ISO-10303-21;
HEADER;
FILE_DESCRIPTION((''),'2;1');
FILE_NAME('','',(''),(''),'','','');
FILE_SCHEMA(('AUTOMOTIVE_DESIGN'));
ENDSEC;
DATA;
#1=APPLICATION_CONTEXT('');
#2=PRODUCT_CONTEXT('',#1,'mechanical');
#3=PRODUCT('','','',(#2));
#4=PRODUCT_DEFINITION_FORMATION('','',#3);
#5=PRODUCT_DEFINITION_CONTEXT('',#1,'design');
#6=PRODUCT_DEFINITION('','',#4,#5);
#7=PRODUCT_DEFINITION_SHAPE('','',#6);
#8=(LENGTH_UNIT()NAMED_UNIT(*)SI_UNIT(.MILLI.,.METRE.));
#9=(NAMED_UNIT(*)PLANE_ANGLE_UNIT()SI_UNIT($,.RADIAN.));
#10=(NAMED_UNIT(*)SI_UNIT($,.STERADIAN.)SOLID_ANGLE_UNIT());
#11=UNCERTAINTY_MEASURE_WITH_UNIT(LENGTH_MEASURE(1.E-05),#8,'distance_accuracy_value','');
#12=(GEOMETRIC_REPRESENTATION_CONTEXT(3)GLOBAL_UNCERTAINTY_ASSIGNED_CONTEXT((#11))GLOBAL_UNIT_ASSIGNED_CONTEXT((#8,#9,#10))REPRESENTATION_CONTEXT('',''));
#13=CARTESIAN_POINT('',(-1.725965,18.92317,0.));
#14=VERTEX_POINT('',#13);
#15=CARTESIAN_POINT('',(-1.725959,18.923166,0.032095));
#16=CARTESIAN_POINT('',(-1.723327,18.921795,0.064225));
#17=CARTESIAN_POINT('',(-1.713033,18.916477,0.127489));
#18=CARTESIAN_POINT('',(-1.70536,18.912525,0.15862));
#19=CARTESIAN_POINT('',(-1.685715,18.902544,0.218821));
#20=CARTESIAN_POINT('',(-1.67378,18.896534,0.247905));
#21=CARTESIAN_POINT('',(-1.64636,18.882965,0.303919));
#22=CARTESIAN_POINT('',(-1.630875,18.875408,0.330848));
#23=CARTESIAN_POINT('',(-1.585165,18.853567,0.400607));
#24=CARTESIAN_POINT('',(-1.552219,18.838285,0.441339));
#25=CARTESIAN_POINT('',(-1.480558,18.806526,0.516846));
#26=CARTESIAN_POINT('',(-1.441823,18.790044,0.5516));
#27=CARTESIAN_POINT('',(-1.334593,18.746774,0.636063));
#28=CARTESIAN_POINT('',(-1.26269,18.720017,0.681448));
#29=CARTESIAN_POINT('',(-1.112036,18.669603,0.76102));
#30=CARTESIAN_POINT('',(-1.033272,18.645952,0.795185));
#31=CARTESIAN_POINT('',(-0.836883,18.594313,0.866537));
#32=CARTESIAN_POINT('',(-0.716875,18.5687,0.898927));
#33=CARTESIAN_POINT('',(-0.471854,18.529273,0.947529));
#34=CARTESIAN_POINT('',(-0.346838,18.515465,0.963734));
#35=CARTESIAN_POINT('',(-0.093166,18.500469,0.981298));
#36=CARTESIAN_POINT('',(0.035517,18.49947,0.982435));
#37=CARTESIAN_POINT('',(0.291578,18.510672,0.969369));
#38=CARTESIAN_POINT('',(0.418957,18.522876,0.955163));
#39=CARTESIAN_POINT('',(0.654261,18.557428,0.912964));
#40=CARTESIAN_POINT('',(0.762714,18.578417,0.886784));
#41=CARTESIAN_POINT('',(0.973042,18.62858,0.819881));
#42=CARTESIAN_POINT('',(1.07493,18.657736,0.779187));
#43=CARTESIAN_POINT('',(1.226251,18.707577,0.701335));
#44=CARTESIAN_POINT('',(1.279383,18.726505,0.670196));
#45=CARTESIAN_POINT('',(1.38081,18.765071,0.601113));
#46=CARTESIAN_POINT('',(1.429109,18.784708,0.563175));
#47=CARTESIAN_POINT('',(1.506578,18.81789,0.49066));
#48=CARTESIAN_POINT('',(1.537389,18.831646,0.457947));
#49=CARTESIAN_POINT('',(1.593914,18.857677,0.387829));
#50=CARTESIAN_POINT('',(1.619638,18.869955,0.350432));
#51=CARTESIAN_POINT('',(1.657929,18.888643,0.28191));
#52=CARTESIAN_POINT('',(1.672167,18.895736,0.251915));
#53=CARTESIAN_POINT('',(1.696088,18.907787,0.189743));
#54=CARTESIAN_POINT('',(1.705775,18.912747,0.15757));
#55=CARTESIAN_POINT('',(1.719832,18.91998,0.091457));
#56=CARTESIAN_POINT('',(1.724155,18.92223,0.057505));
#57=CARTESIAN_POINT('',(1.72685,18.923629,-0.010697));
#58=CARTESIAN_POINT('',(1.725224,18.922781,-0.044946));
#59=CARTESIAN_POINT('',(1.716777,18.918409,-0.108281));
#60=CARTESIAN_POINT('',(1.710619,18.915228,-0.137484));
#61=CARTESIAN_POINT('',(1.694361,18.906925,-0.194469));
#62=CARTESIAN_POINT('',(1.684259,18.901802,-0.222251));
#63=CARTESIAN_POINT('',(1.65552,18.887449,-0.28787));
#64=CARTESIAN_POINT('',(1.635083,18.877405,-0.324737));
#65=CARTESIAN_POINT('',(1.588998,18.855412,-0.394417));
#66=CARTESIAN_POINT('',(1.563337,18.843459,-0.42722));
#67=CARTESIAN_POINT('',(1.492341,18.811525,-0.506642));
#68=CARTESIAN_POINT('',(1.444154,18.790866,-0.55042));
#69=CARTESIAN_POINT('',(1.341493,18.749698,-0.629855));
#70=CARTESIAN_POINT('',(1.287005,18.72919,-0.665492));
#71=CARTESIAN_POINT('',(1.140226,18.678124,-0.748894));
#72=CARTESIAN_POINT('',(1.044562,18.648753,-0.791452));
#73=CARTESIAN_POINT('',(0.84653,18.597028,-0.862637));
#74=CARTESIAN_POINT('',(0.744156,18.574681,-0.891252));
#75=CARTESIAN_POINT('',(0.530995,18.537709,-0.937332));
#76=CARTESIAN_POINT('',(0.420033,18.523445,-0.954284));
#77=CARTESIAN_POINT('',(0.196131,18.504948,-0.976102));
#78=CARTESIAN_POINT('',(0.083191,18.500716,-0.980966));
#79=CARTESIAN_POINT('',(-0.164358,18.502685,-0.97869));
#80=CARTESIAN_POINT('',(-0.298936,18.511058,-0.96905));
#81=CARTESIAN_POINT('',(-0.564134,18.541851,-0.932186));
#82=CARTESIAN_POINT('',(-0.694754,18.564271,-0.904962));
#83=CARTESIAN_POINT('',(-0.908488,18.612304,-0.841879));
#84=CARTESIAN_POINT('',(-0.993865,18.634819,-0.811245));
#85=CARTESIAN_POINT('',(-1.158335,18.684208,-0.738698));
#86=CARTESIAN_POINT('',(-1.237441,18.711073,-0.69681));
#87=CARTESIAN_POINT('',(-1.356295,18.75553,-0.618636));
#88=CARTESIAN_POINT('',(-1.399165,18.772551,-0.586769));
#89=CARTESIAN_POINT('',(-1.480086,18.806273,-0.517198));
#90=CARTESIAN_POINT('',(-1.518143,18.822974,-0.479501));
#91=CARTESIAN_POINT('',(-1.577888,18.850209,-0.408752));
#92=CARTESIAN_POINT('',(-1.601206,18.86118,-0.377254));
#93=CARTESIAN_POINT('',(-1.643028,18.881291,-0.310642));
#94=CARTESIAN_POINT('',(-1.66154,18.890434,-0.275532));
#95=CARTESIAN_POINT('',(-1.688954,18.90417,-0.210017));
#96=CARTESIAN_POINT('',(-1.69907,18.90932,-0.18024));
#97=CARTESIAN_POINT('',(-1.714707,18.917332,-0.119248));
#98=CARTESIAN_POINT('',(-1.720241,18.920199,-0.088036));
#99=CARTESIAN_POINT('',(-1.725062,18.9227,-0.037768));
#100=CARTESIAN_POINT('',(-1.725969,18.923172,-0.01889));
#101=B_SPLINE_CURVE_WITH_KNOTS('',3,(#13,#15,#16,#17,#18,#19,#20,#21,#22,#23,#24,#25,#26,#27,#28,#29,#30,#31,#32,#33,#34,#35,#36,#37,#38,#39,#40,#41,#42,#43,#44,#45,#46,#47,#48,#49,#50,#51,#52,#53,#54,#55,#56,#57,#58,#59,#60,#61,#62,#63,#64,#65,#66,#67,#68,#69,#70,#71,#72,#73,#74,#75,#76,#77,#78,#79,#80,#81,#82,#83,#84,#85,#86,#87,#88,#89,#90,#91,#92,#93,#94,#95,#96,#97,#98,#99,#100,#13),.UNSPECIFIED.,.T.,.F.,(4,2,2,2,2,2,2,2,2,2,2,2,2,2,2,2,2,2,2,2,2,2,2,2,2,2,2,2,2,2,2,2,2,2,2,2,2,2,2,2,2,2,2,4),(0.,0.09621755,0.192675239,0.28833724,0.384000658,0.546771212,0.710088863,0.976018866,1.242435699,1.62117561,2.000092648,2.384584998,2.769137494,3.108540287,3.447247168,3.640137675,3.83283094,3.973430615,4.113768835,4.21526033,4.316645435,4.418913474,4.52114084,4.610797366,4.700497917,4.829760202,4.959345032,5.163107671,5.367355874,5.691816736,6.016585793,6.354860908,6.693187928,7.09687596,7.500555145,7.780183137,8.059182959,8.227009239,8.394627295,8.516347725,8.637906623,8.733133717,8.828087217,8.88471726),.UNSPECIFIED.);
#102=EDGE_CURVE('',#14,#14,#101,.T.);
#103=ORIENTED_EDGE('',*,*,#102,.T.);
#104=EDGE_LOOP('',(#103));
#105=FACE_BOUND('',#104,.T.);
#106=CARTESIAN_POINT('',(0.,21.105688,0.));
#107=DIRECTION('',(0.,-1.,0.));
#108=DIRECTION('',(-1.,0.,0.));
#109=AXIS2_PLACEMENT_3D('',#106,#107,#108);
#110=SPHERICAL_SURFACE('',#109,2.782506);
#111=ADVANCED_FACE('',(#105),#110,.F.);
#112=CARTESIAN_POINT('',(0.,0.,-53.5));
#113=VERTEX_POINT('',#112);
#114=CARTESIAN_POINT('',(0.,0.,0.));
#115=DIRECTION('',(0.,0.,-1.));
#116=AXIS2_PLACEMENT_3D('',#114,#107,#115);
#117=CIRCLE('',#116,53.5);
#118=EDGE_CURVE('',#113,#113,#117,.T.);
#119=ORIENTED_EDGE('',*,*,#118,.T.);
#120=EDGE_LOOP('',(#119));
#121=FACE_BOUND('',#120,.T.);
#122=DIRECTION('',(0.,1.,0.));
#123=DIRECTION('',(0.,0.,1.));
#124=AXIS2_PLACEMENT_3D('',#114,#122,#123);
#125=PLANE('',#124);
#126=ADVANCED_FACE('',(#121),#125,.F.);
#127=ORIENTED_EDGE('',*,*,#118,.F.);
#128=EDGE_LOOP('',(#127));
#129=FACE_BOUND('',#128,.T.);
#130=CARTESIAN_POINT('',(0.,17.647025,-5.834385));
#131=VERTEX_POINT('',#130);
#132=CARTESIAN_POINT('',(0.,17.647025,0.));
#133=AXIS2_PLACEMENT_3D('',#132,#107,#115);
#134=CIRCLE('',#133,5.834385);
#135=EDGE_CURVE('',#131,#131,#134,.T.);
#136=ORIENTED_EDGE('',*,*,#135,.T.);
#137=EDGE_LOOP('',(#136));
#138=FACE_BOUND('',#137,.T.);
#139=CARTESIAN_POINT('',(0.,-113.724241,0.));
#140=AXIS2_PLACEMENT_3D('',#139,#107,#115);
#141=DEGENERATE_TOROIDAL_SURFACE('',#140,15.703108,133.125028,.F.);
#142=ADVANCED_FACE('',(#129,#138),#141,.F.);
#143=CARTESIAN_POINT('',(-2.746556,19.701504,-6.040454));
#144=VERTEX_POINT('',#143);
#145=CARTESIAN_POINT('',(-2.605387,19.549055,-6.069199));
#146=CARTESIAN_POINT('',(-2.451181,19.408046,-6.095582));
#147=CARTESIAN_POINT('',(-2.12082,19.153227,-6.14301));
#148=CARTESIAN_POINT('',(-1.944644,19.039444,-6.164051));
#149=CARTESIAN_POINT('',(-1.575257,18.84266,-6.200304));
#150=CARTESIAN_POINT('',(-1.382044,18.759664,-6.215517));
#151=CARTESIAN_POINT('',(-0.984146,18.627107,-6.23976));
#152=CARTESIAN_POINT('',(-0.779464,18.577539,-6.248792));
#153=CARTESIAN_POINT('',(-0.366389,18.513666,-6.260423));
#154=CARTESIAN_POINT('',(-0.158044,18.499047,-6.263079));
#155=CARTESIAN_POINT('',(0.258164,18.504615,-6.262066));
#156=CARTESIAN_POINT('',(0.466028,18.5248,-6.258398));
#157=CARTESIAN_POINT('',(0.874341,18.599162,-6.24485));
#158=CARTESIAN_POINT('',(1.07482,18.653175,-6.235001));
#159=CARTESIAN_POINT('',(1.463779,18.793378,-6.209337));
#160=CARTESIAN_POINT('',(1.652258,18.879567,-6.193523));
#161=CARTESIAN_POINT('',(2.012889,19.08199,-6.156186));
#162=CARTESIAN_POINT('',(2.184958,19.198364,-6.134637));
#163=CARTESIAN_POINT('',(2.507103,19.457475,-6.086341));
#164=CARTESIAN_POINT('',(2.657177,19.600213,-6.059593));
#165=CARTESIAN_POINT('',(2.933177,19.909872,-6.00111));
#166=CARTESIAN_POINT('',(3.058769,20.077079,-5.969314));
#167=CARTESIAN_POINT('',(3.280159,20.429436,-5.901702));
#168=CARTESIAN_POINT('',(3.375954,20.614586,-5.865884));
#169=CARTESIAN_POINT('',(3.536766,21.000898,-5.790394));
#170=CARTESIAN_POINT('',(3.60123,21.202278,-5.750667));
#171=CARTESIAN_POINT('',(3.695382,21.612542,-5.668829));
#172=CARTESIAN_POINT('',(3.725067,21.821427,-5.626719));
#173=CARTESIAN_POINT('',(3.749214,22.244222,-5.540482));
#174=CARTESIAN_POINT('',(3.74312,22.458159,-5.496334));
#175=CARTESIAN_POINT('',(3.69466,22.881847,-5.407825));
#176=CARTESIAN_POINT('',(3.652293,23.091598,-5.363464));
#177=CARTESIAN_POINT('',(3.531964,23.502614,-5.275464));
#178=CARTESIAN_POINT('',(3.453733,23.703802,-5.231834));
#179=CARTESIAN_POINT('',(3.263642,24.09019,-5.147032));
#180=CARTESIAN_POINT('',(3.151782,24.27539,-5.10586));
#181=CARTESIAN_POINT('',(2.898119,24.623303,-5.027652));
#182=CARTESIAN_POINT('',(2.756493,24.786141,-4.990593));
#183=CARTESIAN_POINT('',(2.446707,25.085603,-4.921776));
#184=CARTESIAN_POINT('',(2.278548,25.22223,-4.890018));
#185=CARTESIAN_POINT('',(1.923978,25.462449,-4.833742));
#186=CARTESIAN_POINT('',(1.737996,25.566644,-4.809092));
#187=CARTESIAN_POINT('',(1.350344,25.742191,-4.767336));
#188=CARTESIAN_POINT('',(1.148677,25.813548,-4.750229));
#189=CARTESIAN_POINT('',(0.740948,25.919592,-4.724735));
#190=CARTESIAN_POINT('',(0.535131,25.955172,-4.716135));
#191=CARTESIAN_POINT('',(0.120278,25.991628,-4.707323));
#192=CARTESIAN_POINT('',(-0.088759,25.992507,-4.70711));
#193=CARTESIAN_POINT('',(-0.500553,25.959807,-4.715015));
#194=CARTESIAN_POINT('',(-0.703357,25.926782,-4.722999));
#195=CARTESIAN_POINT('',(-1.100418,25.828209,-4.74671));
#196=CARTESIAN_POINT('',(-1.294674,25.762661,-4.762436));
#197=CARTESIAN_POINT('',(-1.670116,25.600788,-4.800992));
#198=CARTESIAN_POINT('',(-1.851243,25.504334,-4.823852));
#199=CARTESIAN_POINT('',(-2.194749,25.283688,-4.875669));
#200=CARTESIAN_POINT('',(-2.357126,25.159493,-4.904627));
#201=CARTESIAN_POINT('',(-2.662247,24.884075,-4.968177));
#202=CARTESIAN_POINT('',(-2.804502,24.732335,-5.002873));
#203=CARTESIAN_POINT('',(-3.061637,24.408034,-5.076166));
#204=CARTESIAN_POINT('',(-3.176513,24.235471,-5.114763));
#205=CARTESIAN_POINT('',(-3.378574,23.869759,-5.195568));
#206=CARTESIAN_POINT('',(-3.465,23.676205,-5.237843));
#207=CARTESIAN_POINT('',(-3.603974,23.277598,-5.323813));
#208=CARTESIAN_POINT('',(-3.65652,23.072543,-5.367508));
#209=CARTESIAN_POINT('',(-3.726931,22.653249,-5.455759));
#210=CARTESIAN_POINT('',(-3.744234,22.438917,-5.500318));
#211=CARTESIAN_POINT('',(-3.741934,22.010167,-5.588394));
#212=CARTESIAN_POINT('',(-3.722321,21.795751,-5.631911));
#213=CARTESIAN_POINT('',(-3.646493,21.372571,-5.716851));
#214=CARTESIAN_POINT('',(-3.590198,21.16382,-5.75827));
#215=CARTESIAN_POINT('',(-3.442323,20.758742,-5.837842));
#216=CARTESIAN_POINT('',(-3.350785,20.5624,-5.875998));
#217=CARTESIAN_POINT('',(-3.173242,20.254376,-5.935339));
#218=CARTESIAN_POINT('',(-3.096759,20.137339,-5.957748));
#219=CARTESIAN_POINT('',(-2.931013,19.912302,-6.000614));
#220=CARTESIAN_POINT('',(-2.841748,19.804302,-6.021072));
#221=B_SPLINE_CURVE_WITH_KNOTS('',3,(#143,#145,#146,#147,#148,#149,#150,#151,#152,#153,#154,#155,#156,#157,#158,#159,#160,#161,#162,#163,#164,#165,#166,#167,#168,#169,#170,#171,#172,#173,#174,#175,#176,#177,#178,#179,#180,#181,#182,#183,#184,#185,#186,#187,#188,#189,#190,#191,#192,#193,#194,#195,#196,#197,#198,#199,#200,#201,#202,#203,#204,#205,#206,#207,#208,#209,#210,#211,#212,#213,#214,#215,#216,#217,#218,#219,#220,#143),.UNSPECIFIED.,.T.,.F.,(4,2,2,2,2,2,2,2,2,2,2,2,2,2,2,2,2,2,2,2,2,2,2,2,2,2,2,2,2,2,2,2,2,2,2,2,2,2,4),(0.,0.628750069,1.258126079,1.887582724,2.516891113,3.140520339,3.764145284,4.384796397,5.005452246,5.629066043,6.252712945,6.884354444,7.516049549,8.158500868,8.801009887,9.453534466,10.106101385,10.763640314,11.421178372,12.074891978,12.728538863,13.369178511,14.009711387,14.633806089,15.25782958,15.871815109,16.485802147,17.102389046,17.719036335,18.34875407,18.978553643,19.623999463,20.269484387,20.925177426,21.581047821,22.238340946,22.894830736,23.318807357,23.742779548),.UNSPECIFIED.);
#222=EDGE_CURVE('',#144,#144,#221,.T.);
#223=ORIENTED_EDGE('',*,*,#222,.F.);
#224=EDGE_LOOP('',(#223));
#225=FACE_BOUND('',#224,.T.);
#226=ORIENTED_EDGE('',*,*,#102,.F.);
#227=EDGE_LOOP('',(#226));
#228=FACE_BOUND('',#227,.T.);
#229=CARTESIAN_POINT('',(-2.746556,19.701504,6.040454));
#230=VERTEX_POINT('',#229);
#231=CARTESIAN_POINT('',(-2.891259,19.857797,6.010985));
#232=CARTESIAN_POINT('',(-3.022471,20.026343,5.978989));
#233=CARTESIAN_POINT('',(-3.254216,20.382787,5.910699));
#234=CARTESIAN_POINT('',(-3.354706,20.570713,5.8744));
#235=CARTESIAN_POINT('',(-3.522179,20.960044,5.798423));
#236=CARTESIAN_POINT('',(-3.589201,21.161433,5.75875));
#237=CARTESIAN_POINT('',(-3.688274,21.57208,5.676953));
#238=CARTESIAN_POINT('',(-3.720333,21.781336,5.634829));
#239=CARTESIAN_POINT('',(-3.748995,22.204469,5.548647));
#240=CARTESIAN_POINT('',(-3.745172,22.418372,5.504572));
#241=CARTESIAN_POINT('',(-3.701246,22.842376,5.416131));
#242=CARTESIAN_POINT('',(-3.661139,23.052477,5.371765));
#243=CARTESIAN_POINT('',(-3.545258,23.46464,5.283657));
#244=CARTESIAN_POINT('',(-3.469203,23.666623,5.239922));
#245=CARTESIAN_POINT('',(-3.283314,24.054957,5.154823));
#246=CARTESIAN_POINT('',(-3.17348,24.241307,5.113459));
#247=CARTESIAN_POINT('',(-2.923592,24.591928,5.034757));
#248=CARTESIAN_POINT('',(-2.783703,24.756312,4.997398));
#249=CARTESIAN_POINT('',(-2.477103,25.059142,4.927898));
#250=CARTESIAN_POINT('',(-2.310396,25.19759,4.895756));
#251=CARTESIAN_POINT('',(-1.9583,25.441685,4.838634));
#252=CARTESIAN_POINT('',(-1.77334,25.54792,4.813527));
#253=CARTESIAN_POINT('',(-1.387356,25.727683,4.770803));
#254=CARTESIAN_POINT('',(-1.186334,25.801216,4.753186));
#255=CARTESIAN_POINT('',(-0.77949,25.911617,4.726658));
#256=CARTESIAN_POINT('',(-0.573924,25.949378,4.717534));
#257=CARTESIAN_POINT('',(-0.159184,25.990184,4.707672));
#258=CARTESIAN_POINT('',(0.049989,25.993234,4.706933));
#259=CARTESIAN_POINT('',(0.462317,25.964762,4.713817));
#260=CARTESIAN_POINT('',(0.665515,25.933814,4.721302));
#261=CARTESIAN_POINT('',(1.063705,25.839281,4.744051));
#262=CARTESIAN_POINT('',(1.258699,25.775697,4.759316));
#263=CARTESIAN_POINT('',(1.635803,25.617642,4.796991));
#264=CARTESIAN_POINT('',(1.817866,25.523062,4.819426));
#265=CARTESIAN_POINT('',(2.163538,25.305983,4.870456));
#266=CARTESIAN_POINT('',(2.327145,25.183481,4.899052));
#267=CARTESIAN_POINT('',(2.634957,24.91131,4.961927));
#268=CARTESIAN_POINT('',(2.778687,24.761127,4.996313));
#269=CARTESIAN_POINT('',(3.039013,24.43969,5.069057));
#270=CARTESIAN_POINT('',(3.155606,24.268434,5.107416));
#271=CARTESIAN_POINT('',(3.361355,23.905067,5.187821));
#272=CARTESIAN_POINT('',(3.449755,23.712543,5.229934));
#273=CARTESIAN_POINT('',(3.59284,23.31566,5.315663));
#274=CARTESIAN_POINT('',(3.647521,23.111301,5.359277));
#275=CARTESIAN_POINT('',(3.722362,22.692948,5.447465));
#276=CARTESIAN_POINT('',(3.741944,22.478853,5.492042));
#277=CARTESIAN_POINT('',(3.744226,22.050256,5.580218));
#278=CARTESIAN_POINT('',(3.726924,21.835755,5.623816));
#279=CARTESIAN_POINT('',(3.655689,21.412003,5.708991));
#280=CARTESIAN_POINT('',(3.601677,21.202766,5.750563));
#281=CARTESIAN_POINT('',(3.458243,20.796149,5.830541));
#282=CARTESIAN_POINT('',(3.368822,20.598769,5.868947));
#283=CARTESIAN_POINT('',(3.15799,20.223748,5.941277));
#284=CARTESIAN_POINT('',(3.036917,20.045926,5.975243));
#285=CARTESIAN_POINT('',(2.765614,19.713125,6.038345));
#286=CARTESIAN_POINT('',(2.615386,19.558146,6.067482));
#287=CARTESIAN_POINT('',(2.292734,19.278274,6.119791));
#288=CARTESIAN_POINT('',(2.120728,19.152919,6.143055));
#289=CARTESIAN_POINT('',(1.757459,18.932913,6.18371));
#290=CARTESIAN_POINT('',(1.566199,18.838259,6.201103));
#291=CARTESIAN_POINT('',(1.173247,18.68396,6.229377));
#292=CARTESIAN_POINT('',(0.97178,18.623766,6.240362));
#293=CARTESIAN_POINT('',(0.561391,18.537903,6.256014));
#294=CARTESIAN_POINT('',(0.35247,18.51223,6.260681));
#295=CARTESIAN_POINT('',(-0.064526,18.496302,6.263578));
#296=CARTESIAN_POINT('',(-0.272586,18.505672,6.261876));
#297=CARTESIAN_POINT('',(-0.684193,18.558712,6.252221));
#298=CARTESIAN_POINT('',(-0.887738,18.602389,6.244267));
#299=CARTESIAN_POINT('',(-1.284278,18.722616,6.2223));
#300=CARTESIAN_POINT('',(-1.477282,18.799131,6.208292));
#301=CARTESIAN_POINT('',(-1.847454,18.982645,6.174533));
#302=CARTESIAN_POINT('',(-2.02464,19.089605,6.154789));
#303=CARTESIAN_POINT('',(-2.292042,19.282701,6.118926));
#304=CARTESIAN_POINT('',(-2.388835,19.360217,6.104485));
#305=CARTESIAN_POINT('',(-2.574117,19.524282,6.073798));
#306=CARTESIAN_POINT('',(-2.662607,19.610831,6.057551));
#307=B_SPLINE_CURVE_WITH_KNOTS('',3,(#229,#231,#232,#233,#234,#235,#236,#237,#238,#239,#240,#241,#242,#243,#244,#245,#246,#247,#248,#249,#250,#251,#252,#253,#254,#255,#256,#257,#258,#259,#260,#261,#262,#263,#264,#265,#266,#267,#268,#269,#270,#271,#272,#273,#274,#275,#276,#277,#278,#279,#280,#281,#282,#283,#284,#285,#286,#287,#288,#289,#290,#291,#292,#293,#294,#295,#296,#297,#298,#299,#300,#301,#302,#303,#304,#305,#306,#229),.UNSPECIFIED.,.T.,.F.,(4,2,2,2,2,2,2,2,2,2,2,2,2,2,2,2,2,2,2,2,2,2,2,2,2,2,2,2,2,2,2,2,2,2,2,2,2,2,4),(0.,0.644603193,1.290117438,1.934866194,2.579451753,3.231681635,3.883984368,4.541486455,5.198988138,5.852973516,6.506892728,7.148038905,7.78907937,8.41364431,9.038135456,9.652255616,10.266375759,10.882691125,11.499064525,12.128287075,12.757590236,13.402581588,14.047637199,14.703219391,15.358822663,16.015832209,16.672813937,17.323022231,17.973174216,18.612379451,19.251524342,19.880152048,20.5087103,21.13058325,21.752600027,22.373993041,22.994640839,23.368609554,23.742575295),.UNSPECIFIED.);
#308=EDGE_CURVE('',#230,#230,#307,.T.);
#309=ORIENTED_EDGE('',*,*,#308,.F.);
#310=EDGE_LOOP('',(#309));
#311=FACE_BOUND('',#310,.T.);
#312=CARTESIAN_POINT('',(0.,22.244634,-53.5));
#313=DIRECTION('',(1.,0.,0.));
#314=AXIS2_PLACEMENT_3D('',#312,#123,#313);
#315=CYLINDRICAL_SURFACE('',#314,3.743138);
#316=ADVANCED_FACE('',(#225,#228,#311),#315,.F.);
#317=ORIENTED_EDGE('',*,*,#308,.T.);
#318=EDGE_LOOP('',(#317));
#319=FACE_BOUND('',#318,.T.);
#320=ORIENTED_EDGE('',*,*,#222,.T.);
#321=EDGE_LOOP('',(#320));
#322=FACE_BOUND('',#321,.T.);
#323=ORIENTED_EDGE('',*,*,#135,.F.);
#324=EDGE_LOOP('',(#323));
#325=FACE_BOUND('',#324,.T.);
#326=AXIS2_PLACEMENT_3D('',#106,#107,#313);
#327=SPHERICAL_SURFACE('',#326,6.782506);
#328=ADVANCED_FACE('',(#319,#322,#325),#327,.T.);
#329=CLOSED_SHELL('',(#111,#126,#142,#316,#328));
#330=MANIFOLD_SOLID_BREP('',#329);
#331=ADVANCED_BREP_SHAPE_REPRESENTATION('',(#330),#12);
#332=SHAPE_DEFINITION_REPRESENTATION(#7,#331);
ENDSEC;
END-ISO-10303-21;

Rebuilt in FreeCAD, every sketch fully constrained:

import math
import FreeCAD as App
import Part
import Sketcher

V = App.Vector

doc = App.newDocument("Part")
body = doc.addObject("PartDesign::Body", "Body")

sketch1 = doc.addObject("Sketcher::SketchObject", "Sketch")
body.addObject(sketch1)
sketch1.AttachmentSupport = (doc.XY_Plane, [""])
sketch1.MapMode = "FlatFace"
sketch1.addGeometry([
    Part.LineSegment(V(-53.5, 0, 0), V(0, 0, 0)),
    Part.LineSegment(V(0, 0, 0), V(0, 18.3, 0)),
    Part.ArcOfCircle(Part.Circle(V(0, 21.1, 0), V(0, 0, 1), 2.8), math.radians(90), math.radians(270)),
    Part.LineSegment(V(0, 23.9, 0), V(0, 27.9, 0)),
    Part.ArcOfCircle(Part.Circle(V(0, 21.1, 0), V(0, 0, 1), 6.8), math.radians(90), math.radians(211)),
    Part.ArcOfCircle(Part.Circle(V(15.7, -113.7, 0), V(0, 0, 1), 133.1), math.radians(99), math.radians(121)),
], False)
sketch1.addConstraint([
    Sketcher.Constraint("Coincident", 0, 2, 1, 1),
    Sketcher.Constraint("Coincident", 1, 2, 2, 2),
    Sketcher.Constraint("Coincident", 2, 1, 3, 1),
    Sketcher.Constraint("Coincident", 3, 2, 4, 1),
    Sketcher.Constraint("Coincident", 4, 2, 5, 1),
    Sketcher.Constraint("Coincident", 5, 2, 0, 1),
    Sketcher.Constraint("Horizontal", 0),
    Sketcher.Constraint("Vertical", 1),
    Sketcher.Constraint("Vertical", 3),
    Sketcher.Constraint("Coincident", 0, 2, -1, 1),
    Sketcher.Constraint("Coincident", 4, 3, 2, 3),
    Sketcher.Constraint("PointOnObject", 2, 3, -2),
    Sketcher.Constraint("PointOnObject", 2, 1, -2),
    Sketcher.Constraint("DistanceY", 3, 1, 3, 2, 4.0),
    Sketcher.Constraint("DistanceX", 0, 1, 0, 2, 53.5),
    Sketcher.Constraint("Radius", 5, 133.125028),
    Sketcher.Constraint("Radius", 2, 2.782506),
    Sketcher.Constraint("DistanceY", 1, 1, 1, 2, 18.323182),
    Sketcher.Constraint("DistanceY", 5, 3, -1, 1, 113.724241),
])
revolution = doc.addObject("PartDesign::Revolution", "Revolution")
body.addObject(revolution)
revolution.Profile = sketch1
revolution.ReferenceAxis = (sketch1, ["V_Axis"])
revolution.Angle = 360

sketch2 = doc.addObject("Sketcher::SketchObject", "Sketch001")
body.addObject(sketch2)
sketch2.AttachmentSupport = (doc.XY_Plane, [""])
sketch2.MapMode = "FlatFace"
sketch2.addGeometry(Part.Circle(V(0, 22.2, 0), V(0, 0, 1), 3.7), False)
sketch2.addConstraint([
    Sketcher.Constraint("PointOnObject", 0, 3, -2),
    Sketcher.Constraint("Diameter", 0, 7.486276),
    Sketcher.Constraint("DistanceY", -1, 1, 0, 3, 22.244634),
])
pocket1 = doc.addObject("PartDesign::Pocket", "Pocket")
body.addObject(pocket1)
pocket1.Profile = sketch2
pocket1.Type = "ThroughAll"
pocket1.Midplane = True

doc.recompute()
